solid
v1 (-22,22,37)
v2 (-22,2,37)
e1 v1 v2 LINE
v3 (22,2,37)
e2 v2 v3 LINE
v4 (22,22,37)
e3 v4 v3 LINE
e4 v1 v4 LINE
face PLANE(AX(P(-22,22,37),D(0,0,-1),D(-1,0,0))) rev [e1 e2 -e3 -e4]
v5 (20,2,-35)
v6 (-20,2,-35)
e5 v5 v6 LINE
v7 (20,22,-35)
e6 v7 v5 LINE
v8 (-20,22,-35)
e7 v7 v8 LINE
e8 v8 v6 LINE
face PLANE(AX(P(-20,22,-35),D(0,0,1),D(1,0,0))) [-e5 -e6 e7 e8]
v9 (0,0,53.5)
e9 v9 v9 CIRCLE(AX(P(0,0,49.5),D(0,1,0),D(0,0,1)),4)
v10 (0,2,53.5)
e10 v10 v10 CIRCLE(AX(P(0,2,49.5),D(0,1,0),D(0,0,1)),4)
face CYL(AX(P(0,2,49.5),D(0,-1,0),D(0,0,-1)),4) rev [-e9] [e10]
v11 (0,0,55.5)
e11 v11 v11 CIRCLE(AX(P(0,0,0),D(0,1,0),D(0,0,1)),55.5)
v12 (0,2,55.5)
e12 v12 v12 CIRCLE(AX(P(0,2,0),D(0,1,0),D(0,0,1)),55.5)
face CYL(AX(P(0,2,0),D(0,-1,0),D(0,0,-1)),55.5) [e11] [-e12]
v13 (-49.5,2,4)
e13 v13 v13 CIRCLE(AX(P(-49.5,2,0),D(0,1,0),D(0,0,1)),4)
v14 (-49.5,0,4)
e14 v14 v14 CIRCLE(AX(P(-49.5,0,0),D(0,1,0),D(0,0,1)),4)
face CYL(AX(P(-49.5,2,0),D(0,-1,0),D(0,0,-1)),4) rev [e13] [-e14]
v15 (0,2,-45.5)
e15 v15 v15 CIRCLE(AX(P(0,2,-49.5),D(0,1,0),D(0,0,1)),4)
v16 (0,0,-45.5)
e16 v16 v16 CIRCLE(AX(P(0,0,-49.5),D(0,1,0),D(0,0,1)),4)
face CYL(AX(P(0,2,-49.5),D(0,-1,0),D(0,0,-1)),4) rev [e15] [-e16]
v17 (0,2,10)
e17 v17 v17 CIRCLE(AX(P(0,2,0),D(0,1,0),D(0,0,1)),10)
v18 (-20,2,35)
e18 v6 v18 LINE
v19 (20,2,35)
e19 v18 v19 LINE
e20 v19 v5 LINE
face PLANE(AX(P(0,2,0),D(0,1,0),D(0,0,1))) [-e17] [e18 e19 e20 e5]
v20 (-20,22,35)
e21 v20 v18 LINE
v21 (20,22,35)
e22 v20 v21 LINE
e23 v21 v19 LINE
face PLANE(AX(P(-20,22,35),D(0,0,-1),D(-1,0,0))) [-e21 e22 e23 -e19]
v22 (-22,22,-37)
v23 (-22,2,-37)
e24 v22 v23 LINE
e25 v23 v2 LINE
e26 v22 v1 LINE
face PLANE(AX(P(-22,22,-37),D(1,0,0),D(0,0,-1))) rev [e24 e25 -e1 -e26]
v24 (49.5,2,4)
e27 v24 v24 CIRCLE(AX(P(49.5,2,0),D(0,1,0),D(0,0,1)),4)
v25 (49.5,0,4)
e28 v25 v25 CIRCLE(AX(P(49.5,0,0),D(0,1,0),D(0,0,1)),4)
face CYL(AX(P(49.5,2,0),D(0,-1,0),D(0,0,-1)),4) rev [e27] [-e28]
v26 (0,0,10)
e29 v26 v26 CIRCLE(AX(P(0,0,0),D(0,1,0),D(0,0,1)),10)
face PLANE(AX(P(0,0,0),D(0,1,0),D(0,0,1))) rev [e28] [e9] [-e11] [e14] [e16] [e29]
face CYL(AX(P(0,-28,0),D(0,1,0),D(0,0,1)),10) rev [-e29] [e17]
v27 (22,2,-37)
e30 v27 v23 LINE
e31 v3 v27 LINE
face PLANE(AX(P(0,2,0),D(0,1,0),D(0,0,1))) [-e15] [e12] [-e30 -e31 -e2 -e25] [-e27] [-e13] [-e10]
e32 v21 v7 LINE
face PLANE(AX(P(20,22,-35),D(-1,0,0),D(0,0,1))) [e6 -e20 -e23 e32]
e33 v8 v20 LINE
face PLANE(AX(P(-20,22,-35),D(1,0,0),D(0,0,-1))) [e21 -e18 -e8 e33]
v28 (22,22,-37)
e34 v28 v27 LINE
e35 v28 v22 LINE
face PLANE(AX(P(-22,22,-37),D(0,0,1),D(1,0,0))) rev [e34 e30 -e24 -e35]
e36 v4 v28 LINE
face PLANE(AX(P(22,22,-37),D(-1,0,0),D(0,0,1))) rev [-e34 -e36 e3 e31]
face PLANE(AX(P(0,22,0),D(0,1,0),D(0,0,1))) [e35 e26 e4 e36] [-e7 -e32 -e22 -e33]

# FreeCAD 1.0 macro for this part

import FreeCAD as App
import Part
import Sketcher

V = App.Vector
Q = App.Units.Quantity


def add_polygon(sketch, points):
    """Adds a closed chain of lines whose ends are joined by coincident constraints."""
    first, n = sketch.GeometryCount, len(points)
    for a, b in zip(points, points[1:] + points[:1]):
        sketch.addGeometry(Part.LineSegment(App.Vector(*a, 0), App.Vector(*b, 0)), False)
    for i in range(n):
        sketch.addConstraint(Sketcher.Constraint("Coincident", first + i, 2, first + (i + 1) % n, 1))

doc = App.newDocument("Part")
body = doc.addObject("PartDesign::Body", "Body")

# Sketch on XZ plane
sketch1 = body.newObject("Sketcher::SketchObject", "Sketch")
sketch1.AttachmentSupport = (doc.getObject("XZ_Plane"), [""])
sketch1.MapMode = "FlatFace"
sketch1.addGeometry(Part.Circle(V(0, 0, 0), V(0, 0, 1), 55.5), False)
sketch1.addGeometry(Part.Circle(V(0, -49.5, 0), V(0, 0, 1), 4), False)
sketch1.addGeometry(Part.Circle(V(-49.5, 0, 0), V(0, 0, 1), 4), False)
sketch1.addGeometry(Part.Circle(V(49.5, 0, 0), V(0, 0, 1), 4), False)
sketch1.addGeometry(Part.Circle(V(0, 49.5, 0), V(0, 0, 1), 4), False)
sketch1.addConstraint(Sketcher.Constraint("Coincident", 0, 3, -1, 1))
sketch1.addConstraint(Sketcher.Constraint("Equal", 1, 2))
sketch1.addConstraint(Sketcher.Constraint("Equal", 2, 3))
sketch1.addConstraint(Sketcher.Constraint("Equal", 3, 4))
sketch1.addConstraint(Sketcher.Constraint("Symmetric", 2, 3, 3, 3, -1, 1))
sketch1.addConstraint(Sketcher.Constraint("Symmetric", 1, 3, 4, 3, -1, 1))
sketch1.addConstraint(Sketcher.Constraint("PointOnObject", 1, 3, -2))
sketch1.addConstraint(Sketcher.Constraint("PointOnObject", 2, 3, -1))
sketch1.addConstraint(Sketcher.Constraint("Diameter", 0, Q("111 mm")))
sketch1.addConstraint(Sketcher.Constraint("Diameter", 1, Q("8 mm")))
sketch1.addConstraint(Sketcher.Constraint("DistanceX", 2, 3, 3, 3, Q("99 mm")))
sketch1.addConstraint(Sketcher.Constraint("DistanceY", 1, 3, 4, 3, Q("99 mm")))
pad1 = body.newObject("PartDesign::Pad", "Pad")
pad1.Profile = sketch1
pad1.Length = 2
pad1.Reversed = True

# Sketch on XZ plane
sketch2 = body.newObject("Sketcher::SketchObject", "Sketch001")
sketch2.AttachmentSupport = (doc.getObject("XZ_Plane"), [""])
sketch2.MapMode = "FlatFace"
sketch2.AttachmentOffset = App.Placement(V(0, 0, -2), App.Rotation())
add_polygon(sketch2, [(-22, -37), (-22, 37), (22, 37), (22, -37)])  # lines 0-3
add_polygon(sketch2, [(20, 35), (-20, 35), (-20, -35), (20, -35)])  # lines 4-7
sketch2.addConstraint(Sketcher.Constraint("Vertical", 0))
sketch2.addConstraint(Sketcher.Constraint("Horizontal", 1))
sketch2.addConstraint(Sketcher.Constraint("Vertical", 2))
sketch2.addConstraint(Sketcher.Constraint("Horizontal", 3))
sketch2.addConstraint(Sketcher.Constraint("Horizontal", 4))
sketch2.addConstraint(Sketcher.Constraint("Vertical", 5))
sketch2.addConstraint(Sketcher.Constraint("Horizontal", 6))
sketch2.addConstraint(Sketcher.Constraint("Vertical", 7))
sketch2.addConstraint(Sketcher.Constraint("Symmetric", 0, 2, 2, 2, -1, 1))
sketch2.addConstraint(Sketcher.Constraint("Symmetric", 4, 2, 6, 2, -1, 1))
sketch2.addConstraint(Sketcher.Constraint("DistanceX", 1, 1, 1, 2, Q("44 mm")))
sketch2.addConstraint(Sketcher.Constraint("DistanceX", 4, 2, 4, 1, Q("40 mm")))
sketch2.addConstraint(Sketcher.Constraint("DistanceY", 0, 1, 0, 2, Q("74 mm")))
sketch2.addConstraint(Sketcher.Constraint("DistanceY", 5, 2, 5, 1, Q("70 mm")))
pad2 = body.newObject("PartDesign::Pad", "Pad001")
pad2.Profile = sketch2
pad2.Length = 20
pad2.Reversed = True

# Sketch on XZ plane
sketch3 = body.newObject("Sketcher::SketchObject", "Sketch002")
sketch3.AttachmentSupport = (doc.getObject("XZ_Plane"), [""])
sketch3.MapMode = "FlatFace"
sketch3.AttachmentOffset = App.Placement(V(0, 0, -2), App.Rotation())
sketch3.addGeometry(Part.Circle(V(0, 0, 0), V(0, 0, 1), 10), False)
sketch3.addConstraint(Sketcher.Constraint("Coincident", 0, 3, -1, 1))
sketch3.addConstraint(Sketcher.Constraint("Diameter", 0, Q("20 mm")))
pocket1 = body.newObject("PartDesign::Pocket", "Pocket")
pocket1.Profile = sketch3
pocket1.Length = 30
pocket1.Reversed = True

doc.recompute()
